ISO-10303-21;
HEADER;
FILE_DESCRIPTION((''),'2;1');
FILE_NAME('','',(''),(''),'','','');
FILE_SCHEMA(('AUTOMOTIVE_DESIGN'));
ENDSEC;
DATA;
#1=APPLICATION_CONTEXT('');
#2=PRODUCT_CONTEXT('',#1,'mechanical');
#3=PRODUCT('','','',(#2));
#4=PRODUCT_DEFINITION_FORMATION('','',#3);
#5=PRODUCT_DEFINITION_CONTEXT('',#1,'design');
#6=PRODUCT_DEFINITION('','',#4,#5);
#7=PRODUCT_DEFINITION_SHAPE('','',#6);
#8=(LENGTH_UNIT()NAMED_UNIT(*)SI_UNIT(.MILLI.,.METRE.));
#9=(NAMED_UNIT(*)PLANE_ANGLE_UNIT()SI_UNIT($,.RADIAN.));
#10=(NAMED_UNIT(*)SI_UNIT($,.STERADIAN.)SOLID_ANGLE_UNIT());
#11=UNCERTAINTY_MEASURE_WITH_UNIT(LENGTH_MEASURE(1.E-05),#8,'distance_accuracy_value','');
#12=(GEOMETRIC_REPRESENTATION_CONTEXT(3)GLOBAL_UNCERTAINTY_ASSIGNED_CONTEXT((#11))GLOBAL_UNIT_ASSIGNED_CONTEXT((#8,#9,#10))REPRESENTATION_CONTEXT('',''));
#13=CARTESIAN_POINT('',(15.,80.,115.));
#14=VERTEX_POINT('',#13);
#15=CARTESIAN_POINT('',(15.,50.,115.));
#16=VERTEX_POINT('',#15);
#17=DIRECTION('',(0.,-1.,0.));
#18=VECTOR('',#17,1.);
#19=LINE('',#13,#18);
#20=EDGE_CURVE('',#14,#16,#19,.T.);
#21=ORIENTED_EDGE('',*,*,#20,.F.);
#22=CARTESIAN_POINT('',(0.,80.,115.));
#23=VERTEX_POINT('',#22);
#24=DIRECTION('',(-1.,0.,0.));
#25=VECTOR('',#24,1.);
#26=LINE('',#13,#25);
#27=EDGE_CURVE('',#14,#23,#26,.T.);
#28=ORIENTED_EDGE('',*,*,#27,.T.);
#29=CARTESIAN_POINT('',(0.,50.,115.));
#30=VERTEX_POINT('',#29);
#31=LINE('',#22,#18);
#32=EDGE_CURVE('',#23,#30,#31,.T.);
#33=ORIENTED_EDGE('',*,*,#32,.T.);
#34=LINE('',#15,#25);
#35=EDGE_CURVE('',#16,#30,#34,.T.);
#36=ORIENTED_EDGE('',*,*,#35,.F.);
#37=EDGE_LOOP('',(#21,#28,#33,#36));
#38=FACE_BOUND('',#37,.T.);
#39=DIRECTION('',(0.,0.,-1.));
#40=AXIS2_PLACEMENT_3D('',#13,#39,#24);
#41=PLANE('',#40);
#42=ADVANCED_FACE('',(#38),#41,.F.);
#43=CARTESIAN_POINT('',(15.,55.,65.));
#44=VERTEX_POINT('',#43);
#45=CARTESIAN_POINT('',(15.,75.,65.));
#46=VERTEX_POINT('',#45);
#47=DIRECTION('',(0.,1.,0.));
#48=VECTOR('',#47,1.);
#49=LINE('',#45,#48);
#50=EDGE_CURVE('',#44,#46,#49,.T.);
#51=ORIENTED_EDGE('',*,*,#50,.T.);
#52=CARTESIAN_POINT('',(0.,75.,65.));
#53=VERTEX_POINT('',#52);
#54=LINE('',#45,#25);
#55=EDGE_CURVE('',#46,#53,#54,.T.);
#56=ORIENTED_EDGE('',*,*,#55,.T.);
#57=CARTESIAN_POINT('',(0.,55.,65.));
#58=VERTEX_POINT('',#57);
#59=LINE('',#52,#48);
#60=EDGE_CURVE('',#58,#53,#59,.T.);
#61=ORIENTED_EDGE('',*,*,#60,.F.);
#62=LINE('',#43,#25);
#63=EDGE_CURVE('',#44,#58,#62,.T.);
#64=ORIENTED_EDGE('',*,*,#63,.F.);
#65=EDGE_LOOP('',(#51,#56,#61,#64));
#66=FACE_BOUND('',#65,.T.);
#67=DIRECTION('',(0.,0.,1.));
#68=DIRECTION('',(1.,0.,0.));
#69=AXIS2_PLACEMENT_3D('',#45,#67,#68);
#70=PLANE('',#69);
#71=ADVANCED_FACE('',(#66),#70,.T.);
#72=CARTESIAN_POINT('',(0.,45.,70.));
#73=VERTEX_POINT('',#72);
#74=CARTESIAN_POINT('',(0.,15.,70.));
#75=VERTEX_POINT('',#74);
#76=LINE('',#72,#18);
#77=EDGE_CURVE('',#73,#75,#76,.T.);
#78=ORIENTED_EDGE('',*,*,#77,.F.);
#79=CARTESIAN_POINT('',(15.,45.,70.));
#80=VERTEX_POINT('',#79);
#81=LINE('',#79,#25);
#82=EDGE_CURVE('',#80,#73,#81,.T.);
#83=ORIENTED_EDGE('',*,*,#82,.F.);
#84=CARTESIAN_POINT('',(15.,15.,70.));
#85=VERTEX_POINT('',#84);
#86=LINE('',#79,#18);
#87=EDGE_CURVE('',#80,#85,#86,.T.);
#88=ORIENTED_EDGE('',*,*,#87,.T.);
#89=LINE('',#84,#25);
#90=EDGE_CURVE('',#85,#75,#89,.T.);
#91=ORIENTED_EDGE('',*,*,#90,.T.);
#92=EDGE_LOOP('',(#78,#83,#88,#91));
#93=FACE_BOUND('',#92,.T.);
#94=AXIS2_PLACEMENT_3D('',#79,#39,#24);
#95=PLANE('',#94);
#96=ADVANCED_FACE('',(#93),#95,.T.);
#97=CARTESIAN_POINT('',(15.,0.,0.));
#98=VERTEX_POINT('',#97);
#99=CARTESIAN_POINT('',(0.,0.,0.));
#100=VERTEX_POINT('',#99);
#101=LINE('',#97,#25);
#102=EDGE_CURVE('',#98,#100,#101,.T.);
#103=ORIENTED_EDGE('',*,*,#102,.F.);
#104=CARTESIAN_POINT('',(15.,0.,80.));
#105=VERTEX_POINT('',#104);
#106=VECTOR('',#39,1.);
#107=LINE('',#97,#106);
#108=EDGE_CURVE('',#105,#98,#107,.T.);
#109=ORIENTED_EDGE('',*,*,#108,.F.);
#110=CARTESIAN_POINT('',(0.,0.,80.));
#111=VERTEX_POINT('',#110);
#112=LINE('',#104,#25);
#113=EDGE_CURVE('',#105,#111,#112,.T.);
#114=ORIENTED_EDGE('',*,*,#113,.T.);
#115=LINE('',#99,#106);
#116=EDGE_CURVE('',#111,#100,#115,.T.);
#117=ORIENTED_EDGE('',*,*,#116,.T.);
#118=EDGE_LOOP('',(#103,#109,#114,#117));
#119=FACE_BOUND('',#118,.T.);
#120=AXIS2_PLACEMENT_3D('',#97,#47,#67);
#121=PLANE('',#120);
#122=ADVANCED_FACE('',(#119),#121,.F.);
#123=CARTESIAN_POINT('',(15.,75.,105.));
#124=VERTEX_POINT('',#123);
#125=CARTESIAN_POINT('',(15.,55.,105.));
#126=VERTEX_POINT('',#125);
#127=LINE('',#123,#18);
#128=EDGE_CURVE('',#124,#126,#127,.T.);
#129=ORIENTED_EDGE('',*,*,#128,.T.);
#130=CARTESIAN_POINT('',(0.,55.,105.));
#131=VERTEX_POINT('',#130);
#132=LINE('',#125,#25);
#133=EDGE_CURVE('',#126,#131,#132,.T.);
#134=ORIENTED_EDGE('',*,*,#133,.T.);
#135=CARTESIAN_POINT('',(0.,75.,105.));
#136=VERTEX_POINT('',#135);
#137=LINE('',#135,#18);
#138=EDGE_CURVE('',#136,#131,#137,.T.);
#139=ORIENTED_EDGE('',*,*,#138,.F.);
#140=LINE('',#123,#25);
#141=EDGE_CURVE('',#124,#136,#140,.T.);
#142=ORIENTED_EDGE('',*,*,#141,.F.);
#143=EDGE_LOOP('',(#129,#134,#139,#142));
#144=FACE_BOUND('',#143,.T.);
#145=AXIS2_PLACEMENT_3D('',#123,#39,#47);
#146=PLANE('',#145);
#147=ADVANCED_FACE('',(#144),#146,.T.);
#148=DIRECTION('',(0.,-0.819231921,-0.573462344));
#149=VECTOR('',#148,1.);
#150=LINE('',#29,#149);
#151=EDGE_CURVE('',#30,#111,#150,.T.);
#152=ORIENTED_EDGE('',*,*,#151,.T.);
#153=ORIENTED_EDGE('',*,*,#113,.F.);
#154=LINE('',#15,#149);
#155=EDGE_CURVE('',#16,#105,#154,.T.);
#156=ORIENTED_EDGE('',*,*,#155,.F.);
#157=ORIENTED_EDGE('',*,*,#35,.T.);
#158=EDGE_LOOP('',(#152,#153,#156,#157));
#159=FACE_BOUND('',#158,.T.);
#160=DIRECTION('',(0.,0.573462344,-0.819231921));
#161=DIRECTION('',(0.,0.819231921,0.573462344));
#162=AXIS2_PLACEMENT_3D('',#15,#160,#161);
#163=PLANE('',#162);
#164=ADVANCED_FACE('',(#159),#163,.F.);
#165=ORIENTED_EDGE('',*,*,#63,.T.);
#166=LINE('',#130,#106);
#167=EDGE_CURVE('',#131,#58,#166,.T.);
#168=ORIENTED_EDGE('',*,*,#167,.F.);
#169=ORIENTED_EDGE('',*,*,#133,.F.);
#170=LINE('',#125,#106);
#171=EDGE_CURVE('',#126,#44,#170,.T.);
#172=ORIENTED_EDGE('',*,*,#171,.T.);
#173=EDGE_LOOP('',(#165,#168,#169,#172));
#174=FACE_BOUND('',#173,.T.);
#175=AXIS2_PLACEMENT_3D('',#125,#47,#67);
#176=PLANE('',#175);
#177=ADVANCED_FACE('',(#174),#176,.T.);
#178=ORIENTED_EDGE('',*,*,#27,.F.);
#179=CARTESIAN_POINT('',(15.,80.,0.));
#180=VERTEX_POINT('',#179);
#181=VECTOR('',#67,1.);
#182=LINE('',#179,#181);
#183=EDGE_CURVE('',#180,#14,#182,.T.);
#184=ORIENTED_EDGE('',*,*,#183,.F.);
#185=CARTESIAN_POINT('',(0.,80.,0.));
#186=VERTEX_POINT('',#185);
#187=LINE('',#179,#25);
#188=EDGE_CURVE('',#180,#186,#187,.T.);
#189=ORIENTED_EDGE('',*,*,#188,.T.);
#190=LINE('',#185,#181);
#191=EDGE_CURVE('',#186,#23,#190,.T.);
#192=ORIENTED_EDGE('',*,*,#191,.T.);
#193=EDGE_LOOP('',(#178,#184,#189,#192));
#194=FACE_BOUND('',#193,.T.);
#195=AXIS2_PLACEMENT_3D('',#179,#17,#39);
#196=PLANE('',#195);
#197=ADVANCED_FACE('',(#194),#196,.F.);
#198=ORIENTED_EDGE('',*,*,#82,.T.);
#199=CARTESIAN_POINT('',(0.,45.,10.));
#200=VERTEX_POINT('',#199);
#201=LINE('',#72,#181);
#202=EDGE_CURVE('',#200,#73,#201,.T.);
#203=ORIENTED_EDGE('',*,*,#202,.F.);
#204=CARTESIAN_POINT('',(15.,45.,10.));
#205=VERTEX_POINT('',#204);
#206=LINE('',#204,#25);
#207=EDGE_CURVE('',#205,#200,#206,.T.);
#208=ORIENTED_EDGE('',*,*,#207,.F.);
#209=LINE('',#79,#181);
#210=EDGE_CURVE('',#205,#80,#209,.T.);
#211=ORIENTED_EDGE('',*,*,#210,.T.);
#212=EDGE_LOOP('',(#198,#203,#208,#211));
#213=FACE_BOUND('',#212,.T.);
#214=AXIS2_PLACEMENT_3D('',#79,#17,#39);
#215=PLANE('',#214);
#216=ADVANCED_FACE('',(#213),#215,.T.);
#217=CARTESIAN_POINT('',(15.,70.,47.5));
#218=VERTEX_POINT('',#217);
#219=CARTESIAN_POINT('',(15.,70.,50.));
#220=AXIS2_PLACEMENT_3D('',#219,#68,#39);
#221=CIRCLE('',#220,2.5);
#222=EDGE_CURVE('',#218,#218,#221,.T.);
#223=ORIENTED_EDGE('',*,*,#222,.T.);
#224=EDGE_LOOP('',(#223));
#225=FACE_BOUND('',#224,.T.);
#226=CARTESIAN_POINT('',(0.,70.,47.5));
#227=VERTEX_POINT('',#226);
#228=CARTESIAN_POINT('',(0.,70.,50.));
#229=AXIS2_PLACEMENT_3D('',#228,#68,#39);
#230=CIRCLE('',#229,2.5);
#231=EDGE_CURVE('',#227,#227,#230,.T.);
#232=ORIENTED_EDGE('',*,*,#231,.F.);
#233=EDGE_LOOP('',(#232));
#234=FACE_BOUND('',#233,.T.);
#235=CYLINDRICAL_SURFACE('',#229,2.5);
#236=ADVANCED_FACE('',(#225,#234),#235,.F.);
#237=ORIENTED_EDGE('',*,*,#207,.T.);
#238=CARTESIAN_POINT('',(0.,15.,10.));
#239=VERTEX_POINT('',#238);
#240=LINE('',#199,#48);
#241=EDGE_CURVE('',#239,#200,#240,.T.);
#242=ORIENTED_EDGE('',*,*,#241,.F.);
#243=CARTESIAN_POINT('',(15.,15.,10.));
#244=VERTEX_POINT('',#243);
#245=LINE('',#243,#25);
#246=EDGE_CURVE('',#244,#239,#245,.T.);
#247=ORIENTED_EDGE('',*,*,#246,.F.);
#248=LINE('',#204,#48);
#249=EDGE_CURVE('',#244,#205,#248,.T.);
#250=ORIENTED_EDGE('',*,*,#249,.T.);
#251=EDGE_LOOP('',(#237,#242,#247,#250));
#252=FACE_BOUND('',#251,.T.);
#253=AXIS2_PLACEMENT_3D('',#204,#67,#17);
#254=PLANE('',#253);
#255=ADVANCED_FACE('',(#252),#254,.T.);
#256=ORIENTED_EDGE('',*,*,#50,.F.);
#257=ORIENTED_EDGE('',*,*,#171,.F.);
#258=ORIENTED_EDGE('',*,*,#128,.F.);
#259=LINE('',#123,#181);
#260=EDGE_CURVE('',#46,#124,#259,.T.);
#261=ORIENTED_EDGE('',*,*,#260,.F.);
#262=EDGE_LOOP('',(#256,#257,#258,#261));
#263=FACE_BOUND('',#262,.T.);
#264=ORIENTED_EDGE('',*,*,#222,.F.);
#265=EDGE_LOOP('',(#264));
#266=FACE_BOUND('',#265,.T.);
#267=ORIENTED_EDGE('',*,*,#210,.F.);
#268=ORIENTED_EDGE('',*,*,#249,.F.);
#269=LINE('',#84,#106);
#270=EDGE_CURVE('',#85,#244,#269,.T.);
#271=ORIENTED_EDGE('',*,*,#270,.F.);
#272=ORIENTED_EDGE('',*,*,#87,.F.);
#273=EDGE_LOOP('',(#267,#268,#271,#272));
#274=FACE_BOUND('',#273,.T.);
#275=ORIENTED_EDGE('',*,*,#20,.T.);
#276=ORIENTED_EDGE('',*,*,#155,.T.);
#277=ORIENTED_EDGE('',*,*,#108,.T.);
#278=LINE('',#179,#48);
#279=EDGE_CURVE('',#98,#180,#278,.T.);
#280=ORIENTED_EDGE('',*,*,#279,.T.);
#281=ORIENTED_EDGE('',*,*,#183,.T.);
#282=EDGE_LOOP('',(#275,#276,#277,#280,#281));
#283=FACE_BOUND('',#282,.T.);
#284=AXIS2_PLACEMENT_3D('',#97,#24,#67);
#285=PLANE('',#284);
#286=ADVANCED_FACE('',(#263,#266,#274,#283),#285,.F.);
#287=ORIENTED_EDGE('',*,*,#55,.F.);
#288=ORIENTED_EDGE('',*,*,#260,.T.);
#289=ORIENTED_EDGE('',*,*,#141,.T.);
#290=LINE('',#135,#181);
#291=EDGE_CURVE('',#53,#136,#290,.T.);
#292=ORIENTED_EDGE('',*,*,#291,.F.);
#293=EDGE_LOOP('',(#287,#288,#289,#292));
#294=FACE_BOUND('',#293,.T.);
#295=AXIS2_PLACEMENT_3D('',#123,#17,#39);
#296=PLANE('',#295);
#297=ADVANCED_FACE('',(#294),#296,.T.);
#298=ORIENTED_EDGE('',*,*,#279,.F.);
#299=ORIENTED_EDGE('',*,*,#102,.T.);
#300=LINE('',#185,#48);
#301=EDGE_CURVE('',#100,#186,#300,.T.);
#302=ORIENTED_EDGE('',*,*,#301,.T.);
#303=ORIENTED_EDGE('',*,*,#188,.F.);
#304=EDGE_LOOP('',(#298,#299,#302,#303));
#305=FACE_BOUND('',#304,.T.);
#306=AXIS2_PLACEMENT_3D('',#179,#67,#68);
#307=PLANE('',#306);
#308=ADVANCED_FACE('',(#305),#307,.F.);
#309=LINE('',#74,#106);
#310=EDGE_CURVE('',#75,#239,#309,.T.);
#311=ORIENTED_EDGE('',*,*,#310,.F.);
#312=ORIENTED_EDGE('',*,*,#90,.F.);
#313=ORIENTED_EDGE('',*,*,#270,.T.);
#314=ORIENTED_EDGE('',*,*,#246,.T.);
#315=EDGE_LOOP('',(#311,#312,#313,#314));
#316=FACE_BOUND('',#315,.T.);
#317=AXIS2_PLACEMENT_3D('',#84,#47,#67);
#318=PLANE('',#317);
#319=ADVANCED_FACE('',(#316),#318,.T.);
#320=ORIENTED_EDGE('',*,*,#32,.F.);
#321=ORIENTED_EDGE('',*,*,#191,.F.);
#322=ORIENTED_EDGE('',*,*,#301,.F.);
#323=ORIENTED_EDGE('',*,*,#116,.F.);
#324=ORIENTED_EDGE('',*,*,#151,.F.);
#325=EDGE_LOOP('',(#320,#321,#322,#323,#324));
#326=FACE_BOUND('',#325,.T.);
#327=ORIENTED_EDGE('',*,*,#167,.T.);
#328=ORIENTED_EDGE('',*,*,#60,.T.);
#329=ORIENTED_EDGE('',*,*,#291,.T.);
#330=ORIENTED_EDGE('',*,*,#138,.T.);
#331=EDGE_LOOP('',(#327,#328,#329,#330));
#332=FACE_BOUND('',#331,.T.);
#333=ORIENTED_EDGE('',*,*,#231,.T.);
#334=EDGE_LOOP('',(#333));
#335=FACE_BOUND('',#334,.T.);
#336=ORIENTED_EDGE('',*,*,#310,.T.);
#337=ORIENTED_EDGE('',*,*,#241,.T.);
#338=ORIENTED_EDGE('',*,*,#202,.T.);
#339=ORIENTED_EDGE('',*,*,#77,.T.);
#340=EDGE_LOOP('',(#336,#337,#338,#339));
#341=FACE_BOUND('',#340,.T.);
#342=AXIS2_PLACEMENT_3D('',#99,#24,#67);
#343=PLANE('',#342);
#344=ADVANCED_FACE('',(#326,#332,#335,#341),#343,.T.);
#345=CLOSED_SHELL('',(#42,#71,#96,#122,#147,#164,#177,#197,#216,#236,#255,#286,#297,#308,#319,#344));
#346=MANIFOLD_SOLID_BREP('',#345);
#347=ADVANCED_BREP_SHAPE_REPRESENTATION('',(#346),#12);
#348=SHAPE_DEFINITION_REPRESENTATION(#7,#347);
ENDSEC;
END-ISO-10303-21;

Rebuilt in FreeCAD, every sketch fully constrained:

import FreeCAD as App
import Part
import Sketcher
from FreeCAD import Vector
Q = App.Units.Quantity


def add_polygon(sketch, points):
    """Adds a closed chain of lines whose ends are joined by coincident constraints."""
    first, n = sketch.GeometryCount, len(points)
    for a, b in zip(points, points[1:] + points[:1]):
        sketch.addGeometry(Part.LineSegment(App.Vector(*a, 0), App.Vector(*b, 0)), False)
    for i in range(n):
        sketch.addConstraint(Sketcher.Constraint("Coincident", first + i, 2, first + (i + 1) % n, 1))

doc = App.newDocument("Part")
body = doc.addObject("PartDesign::Body", "Body")

sketch1 = body.newObject("Sketcher::SketchObject", "Sketch")
sketch1.AttachmentSupport = (doc.getObject("YZ_Plane"), [""])
sketch1.MapMode = "FlatFace"
add_polygon(sketch1, [(50, 115), (0, 80), (0, 0), (80, 0), (80, 115)])
add_polygon(sketch1, [(15, 10), (15, 70), (45, 70), (45, 10)])
add_polygon(sketch1, [(55, 65), (55, 105), (75, 105), (75, 65)])
sketch1.addConstraint([
    Sketcher.Constraint("Vertical", 1),
    Sketcher.Constraint("Horizontal", 2),
    Sketcher.Constraint("Vertical", 3),
    Sketcher.Constraint("Horizontal", 4),
    Sketcher.Constraint("Vertical", 5),
    Sketcher.Constraint("Horizontal", 6),
    Sketcher.Constraint("Vertical", 7),
    Sketcher.Constraint("Horizontal", 8),
    Sketcher.Constraint("Vertical", 9),
    Sketcher.Constraint("Horizontal", 10),
    Sketcher.Constraint("Vertical", 11),
    Sketcher.Constraint("Horizontal", 12),
    Sketcher.Constraint("Coincident", 1, 2, -1, 1),
    Sketcher.Constraint("Equal", 4, 6),
    Sketcher.Constraint("Equal", 2, 1),
    Sketcher.Constraint("DistanceX", 2, 1, 2, 2, Q("80 mm")),
    Sketcher.Constraint("DistanceX", 4, 2, 4, 1, Q("30 mm")),
    Sketcher.Constraint("DistanceX", 10, 1, 10, 2, Q("20 mm")),
    Sketcher.Constraint("DistanceY", 3, 1, 3, 2, Q("115 mm")),
    Sketcher.Constraint("DistanceY", 5, 1, 5, 2, Q("60 mm")),
    Sketcher.Constraint("DistanceY", 9, 1, 9, 2, Q("40 mm")),
    Sketcher.Constraint("DistanceX", -1, 1, 5, 2, Q("15 mm")),
    Sketcher.Constraint("DistanceY", -1, 1, 5, 2, Q("70 mm")),
    Sketcher.Constraint("DistanceX", -1, 1, 9, 2, Q("55 mm")),
    Sketcher.Constraint("DistanceY", -1, 1, 9, 2, Q("105 mm")),
])
pad1 = body.newObject("PartDesign::Pad", "Pad")
pad1.Profile = sketch1
pad1.Length = 15

sketch2 = body.newObject("Sketcher::SketchObject", "Sketch001")
sketch2.AttachmentSupport = (doc.getObject("YZ_Plane"), [""])
sketch2.MapMode = "FlatFace"
sketch2.AttachmentOffset = App.Placement(Vector(0, 0, 15), App.Rotation())
sketch2.addGeometry(Part.Circle(Vector(70, 50, 0), Vector(0, 0, 1), 2.5), False)
sketch2.addConstraint([
    Sketcher.Constraint("Diameter", 0, Q("5 mm")),
    Sketcher.Constraint("DistanceX", -1, 1, 0, 3, Q("70 mm")),
    Sketcher.Constraint("DistanceY", -1, 1, 0, 3, Q("50 mm")),
])
pocket1 = body.newObject("PartDesign::Pocket", "Pocket")
pocket1.Profile = sketch2
pocket1.Length = 15

doc.recompute()
